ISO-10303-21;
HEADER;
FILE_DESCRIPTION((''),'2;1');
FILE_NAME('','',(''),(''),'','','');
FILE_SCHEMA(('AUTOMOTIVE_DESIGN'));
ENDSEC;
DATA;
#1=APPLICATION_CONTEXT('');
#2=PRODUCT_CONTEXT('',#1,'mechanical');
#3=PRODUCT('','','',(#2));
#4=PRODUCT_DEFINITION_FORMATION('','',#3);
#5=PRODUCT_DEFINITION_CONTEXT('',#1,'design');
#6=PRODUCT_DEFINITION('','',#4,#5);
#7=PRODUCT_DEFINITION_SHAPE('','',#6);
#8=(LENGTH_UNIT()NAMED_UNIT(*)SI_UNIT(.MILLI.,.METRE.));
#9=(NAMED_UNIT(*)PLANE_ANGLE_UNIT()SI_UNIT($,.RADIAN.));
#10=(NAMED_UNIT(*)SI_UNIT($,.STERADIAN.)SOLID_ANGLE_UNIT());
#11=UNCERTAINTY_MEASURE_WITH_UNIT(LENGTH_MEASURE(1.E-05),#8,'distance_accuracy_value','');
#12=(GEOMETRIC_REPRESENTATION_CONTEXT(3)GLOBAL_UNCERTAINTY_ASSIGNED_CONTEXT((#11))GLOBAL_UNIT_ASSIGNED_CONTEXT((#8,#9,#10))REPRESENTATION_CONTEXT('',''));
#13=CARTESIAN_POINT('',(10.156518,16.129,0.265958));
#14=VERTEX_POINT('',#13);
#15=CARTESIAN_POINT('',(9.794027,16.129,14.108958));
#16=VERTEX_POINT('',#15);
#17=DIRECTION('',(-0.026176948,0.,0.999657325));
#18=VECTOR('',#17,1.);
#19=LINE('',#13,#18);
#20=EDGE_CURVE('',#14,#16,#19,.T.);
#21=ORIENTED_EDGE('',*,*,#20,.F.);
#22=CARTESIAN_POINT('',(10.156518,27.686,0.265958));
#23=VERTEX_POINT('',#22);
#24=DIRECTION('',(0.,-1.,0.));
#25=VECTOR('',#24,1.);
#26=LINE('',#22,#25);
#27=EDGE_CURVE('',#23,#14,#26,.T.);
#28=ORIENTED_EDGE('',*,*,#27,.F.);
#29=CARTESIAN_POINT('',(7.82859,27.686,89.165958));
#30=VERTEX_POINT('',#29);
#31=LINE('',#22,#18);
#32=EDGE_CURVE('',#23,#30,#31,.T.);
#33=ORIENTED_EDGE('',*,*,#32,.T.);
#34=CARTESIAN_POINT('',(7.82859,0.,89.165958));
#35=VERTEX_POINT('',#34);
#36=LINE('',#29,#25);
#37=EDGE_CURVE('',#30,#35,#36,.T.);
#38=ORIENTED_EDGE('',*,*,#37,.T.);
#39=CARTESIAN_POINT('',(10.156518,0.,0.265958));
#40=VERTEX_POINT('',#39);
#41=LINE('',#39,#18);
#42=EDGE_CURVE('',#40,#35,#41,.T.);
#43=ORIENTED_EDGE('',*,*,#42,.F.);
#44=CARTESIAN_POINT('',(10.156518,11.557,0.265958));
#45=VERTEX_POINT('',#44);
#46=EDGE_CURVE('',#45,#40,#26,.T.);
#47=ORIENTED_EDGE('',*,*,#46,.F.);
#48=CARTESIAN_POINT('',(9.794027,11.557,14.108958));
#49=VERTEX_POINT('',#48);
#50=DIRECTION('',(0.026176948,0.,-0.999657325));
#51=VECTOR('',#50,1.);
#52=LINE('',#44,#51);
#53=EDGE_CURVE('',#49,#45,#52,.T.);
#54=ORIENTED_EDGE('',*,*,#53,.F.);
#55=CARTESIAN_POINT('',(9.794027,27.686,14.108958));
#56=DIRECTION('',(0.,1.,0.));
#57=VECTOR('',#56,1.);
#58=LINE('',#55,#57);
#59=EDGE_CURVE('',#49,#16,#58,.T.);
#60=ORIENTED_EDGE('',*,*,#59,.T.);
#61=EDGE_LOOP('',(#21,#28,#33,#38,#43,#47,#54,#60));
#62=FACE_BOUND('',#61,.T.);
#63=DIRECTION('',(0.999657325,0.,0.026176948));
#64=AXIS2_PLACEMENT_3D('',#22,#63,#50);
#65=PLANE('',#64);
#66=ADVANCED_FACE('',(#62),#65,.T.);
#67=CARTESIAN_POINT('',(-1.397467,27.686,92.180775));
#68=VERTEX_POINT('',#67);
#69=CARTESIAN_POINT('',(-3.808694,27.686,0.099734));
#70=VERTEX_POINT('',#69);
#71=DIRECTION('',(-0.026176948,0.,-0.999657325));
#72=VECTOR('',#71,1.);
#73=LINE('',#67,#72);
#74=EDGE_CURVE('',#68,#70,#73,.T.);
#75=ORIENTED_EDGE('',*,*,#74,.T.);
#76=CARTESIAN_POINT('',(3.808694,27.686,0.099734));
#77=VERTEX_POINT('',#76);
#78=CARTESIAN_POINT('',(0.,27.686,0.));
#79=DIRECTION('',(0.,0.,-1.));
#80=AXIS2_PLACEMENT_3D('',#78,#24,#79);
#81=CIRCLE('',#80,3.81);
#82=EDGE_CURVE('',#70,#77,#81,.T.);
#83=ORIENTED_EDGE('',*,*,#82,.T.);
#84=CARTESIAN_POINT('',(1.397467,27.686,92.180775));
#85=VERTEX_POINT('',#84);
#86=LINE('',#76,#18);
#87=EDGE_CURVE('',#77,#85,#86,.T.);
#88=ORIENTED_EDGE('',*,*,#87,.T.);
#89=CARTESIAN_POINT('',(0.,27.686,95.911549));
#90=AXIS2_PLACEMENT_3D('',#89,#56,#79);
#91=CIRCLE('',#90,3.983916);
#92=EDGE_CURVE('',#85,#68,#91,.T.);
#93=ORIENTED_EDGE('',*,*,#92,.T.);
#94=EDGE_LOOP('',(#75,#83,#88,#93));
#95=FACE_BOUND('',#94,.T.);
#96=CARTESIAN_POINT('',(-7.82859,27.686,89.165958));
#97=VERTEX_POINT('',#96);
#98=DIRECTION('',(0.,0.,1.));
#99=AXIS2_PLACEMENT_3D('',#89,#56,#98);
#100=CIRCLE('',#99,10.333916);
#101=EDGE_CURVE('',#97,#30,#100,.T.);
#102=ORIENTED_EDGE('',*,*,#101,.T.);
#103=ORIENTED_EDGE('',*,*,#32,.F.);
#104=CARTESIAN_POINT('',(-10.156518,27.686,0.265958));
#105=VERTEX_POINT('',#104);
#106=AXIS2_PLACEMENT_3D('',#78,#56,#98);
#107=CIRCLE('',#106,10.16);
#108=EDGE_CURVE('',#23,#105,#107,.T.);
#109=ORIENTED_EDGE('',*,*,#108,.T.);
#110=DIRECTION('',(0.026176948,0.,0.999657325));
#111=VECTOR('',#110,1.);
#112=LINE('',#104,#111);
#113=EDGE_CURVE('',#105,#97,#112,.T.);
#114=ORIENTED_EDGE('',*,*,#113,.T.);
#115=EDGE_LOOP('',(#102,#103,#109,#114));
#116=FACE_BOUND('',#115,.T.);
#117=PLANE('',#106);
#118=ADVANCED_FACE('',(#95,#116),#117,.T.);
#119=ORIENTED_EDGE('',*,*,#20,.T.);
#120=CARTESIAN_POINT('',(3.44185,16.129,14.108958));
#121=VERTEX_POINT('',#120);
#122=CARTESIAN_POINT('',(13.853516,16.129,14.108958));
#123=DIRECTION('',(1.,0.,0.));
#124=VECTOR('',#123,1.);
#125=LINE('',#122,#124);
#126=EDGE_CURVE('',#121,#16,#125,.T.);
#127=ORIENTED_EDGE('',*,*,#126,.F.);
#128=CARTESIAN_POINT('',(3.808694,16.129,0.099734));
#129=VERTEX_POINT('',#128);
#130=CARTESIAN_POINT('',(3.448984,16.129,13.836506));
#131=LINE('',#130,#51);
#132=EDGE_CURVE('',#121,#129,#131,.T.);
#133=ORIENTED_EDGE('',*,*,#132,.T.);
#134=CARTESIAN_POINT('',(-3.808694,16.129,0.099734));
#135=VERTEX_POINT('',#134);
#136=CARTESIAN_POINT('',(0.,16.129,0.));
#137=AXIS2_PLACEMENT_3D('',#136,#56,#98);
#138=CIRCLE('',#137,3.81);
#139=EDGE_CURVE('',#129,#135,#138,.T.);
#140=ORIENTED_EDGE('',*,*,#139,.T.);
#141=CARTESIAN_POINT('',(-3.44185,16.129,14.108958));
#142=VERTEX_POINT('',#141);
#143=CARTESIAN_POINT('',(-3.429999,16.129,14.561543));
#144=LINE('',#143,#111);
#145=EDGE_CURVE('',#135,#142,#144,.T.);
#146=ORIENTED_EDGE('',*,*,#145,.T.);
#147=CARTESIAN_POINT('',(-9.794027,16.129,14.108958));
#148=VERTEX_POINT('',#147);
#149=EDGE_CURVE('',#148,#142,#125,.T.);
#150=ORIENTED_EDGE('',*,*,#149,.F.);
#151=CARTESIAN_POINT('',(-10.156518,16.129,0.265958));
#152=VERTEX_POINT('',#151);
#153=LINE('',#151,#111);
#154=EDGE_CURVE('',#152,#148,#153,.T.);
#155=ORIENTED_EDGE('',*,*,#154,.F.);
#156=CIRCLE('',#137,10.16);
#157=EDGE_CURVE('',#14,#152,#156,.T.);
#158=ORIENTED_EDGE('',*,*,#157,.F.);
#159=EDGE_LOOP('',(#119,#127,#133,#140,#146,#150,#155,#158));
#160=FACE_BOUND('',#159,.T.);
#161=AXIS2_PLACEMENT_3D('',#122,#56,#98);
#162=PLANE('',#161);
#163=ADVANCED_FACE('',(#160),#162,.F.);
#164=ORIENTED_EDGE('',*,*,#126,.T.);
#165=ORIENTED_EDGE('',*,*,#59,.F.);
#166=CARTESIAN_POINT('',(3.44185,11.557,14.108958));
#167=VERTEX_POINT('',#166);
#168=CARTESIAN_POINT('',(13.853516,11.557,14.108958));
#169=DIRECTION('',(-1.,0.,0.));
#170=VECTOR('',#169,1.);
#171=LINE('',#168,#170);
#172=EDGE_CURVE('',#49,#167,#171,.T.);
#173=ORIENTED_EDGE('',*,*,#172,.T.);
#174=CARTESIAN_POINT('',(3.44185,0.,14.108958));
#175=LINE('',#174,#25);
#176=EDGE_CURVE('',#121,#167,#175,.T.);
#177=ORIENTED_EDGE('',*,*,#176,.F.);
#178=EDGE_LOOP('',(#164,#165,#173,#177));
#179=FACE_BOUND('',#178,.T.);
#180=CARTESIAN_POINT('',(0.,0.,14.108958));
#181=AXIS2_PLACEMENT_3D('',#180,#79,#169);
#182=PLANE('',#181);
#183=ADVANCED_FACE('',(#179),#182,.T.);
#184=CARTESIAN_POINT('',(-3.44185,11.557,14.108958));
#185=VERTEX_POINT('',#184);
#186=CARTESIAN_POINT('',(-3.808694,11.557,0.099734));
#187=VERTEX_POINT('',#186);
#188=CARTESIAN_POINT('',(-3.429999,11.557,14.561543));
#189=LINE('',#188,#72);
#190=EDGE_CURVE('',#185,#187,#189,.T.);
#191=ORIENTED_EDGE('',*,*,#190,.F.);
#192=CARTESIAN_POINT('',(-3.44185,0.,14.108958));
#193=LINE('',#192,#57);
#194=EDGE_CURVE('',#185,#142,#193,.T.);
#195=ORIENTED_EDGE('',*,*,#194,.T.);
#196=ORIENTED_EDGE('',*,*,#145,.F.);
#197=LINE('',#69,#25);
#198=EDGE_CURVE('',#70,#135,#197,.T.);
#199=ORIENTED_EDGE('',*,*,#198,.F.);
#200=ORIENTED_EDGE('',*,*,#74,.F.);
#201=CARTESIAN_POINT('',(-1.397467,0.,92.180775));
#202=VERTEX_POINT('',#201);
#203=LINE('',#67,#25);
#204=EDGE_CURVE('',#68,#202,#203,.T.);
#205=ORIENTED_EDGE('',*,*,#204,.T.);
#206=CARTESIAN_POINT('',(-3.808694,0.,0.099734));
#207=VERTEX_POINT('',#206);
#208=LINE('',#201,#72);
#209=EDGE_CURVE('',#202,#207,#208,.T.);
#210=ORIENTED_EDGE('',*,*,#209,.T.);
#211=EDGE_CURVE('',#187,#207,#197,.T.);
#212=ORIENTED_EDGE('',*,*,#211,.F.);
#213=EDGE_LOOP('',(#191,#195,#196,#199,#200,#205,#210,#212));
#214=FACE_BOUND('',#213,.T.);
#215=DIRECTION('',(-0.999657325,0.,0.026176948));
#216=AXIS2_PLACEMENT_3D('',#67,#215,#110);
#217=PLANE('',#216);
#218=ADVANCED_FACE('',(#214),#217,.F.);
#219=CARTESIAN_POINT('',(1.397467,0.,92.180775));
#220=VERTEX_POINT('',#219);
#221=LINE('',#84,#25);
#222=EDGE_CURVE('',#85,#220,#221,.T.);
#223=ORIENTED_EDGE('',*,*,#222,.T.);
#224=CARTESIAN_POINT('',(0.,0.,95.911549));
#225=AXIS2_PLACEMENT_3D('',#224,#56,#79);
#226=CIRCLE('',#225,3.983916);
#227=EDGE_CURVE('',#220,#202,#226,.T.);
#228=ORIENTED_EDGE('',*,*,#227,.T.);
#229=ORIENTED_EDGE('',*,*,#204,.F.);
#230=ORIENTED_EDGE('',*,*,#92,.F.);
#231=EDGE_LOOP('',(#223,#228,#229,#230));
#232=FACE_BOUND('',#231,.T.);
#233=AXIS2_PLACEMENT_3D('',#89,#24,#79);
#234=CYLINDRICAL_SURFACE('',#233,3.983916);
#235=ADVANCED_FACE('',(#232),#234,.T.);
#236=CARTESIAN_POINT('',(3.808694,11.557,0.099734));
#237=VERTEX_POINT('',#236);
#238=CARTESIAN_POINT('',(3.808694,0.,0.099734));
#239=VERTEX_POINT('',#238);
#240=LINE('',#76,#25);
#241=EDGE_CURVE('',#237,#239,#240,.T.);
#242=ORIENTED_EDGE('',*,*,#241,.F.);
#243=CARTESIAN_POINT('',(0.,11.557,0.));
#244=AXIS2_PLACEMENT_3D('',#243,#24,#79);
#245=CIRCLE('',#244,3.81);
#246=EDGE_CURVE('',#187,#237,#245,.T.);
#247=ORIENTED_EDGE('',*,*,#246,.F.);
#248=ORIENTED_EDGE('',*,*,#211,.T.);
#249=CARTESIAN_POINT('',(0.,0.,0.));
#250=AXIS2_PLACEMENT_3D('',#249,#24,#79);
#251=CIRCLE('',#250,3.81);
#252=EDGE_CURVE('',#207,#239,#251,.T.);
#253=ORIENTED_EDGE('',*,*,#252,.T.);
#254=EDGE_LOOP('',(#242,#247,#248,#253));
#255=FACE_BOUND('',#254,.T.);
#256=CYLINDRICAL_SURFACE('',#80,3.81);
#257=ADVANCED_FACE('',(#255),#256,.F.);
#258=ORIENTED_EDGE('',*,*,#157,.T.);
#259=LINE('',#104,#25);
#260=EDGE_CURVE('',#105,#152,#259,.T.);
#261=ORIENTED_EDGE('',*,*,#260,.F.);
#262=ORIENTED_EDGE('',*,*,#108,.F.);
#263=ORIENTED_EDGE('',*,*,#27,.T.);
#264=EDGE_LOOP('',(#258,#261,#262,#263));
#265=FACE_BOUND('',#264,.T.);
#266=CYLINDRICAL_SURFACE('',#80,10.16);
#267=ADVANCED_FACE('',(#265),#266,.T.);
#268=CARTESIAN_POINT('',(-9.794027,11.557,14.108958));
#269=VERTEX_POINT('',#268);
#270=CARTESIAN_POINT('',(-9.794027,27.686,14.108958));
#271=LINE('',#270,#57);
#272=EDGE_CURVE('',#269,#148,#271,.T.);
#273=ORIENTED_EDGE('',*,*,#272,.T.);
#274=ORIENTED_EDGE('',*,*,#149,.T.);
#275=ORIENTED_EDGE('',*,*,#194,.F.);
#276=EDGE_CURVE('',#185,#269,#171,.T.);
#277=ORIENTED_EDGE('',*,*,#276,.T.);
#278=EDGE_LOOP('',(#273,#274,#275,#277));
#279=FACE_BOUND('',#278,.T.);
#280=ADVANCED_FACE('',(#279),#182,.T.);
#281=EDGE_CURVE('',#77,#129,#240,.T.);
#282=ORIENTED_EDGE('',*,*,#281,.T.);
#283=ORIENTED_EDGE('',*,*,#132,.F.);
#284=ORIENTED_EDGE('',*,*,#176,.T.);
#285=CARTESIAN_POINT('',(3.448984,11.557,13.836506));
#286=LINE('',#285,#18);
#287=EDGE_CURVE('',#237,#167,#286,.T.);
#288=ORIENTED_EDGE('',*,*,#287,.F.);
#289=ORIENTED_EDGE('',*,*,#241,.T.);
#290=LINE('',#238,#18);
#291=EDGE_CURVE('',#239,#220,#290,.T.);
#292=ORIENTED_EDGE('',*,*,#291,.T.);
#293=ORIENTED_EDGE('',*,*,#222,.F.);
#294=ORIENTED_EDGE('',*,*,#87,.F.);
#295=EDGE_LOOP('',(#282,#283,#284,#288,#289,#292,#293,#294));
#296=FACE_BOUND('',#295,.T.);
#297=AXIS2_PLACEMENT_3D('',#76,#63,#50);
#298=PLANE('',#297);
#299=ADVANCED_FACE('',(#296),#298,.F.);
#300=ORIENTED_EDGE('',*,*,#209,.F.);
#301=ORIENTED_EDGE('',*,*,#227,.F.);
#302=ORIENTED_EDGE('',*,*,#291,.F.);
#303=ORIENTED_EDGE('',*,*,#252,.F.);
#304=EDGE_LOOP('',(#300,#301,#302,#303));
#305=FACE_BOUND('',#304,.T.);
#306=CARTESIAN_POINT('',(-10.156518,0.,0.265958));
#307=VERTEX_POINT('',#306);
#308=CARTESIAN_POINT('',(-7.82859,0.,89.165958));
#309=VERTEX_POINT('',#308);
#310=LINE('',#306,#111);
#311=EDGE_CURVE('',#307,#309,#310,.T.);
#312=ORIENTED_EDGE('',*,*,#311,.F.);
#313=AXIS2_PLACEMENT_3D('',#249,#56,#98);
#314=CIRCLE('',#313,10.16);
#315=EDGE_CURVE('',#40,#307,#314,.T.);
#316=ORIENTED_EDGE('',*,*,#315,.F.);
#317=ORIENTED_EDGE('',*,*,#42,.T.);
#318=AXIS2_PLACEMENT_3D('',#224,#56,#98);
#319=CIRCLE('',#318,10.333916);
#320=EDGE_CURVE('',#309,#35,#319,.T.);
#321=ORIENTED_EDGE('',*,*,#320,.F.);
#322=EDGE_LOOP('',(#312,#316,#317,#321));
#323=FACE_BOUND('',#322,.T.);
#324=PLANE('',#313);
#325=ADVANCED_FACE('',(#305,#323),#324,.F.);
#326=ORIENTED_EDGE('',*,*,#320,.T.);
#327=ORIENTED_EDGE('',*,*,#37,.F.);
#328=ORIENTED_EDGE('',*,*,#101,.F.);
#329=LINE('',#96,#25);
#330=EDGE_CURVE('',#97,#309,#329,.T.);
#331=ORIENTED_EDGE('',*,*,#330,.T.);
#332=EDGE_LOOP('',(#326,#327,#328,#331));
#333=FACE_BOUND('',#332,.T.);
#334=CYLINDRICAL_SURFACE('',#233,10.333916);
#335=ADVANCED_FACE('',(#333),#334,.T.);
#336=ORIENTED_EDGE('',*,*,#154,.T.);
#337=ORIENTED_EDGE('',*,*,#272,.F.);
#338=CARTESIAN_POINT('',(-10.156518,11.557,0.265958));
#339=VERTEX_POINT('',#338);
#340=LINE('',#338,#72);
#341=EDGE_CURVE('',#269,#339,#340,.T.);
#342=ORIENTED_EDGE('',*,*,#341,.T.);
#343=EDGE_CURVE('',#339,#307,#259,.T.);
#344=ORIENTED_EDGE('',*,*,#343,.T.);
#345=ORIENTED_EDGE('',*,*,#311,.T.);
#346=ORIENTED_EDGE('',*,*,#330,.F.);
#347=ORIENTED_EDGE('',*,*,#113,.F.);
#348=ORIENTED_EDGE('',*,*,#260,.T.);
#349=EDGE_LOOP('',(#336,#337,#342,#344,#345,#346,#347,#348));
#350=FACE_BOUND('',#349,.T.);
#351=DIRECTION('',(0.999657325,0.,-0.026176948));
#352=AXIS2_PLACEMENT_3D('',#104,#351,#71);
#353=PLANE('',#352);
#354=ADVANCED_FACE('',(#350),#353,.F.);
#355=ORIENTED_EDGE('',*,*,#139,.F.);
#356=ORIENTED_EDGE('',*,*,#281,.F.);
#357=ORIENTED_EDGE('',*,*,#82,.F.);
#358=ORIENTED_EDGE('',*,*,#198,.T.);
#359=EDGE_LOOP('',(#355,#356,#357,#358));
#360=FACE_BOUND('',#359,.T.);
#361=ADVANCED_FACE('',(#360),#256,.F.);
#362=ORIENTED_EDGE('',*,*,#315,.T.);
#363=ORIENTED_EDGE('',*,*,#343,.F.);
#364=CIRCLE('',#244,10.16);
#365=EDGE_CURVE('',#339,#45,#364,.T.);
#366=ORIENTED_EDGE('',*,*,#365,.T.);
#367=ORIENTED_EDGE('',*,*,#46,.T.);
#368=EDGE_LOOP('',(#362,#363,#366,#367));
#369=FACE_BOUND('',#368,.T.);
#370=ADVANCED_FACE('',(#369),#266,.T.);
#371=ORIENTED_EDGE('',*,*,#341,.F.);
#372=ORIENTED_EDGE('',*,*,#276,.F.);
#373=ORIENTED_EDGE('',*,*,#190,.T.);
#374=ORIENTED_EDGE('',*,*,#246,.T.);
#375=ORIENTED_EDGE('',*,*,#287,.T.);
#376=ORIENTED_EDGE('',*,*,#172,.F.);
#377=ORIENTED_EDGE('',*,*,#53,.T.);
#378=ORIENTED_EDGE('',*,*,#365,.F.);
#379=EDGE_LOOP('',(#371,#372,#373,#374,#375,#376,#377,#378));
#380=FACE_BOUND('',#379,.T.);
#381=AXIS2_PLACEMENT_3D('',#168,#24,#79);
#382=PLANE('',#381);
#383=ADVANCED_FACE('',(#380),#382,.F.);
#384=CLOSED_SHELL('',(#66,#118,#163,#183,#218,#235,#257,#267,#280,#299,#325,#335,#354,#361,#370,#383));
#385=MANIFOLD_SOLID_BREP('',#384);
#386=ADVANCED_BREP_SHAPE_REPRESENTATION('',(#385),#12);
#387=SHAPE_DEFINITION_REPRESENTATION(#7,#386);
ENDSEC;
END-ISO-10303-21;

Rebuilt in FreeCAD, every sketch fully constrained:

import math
import FreeCAD as App
import Part
import Sketcher

V = App.Vector
Q = App.Units.Quantity

doc = App.newDocument("Part")
params = doc.addObject("Spreadsheet::Sheet", "Params")
for row, (alias, value) in enumerate([
    ("sketch1_radius", "0.4 in"),
    ("pad1_length", "1.09 in"),
    ("sketch2_height", "0.18 in"),
    ("pocket1_length", "1.09 in"),
    ("sketch3_radius", "0.4 in"),
    ("sketch3_radius2", "0.15 in"),
    ("pocket2_length", "1.09 in"),
], start=1):
    params.set(f"A{row}", alias)
    params.set(f"B{row}", "=" + value)
    params.setAlias(f"B{row}", alias)

body = doc.addObject("PartDesign::Body", "Body")

sketch1 = body.newObject("Sketcher::SketchObject", "Sketch")
sketch1.AttachmentSupport = (doc.getObject("XZ_Plane"), [""])
sketch1.MapMode = "FlatFace"
sketch1.addGeometry([
    Part.LineSegment(V(-10, 0, 0), V(-8, 89, 0)),
    Part.ArcOfCircle(Part.Circle(V(0, 96, 0), V(0, 0, 1), 10), math.radians(-41), math.radians(221)),
    Part.LineSegment(V(8, 89, 0), V(10, 0, 0)),
    Part.ArcOfCircle(Part.Circle(V(0, 0, 0), V(0, 0, 1), 10), math.radians(178), math.radians(362)),
], False)
sketch1.addConstraint([
    Sketcher.Constraint("Coincident", 0, 2, 1, 2),
    Sketcher.Constraint("Coincident", 1, 1, 2, 1),
    Sketcher.Constraint("Tangent", 2, 2, 3, 2),
    Sketcher.Constraint("Tangent", 3, 1, 0, 1),
    Sketcher.Constraint("Coincident", 3, 3, -1, 1),
    Sketcher.Constraint("Symmetric", 0, 2, 1, 1, -2),
    Sketcher.Constraint("Radius", 3, Q("0.4 in")),
    Sketcher.Constraint("Angle", 0, Q("88.5 deg")),
    Sketcher.Constraint("DistanceY", 2, 2, 1, 1, Q("3.5 in")),
    Sketcher.Constraint("Radius", 1, Q("10.333916 mm")),
])
sketch1.setExpression("Constraints[6]", "Params.sketch1_radius")
pad1 = body.newObject("PartDesign::Pad", "Pad")
pad1.Profile = sketch1
pad1.setExpression("Length", "Params.pad1_length")
pad1.Reversed = True

sketch2 = body.newObject("Sketcher::SketchObject", "Sketch001")
sketch2.AttachmentSupport = (doc.getObject("XY_Plane"), [""])
sketch2.MapMode = "FlatFace"
sketch2.AttachmentOffset = App.Placement(V(0, 0, 0.265958), App.Rotation())
sketch2.addGeometry([
    Part.LineSegment(V(13.9, 16.1, 0), V(13.9, 11.6, 0)),
    Part.LineSegment(V(13.9, 11.6, 0), V(-16.1, 11.6, 0)),
    Part.LineSegment(V(-16.1, 11.6, 0), V(-16.1, 16.1, 0)),
    Part.LineSegment(V(-16.1, 16.1, 0), V(13.9, 16.1, 0)),
], False)
sketch2.addConstraint([
    Sketcher.Constraint("Coincident", 0, 2, 1, 1),
    Sketcher.Constraint("Coincident", 1, 2, 2, 1),
    Sketcher.Constraint("Coincident", 2, 2, 3, 1),
    Sketcher.Constraint("Coincident", 3, 2, 0, 1),
    Sketcher.Constraint("Vertical", 0),
    Sketcher.Constraint("Horizontal", 1),
    Sketcher.Constraint("Vertical", 2),
    Sketcher.Constraint("Horizontal", 3),
    Sketcher.Constraint("DistanceY", 0, 2, 0, 1, Q("0.18 in")),
    Sketcher.Constraint("DistanceY", -1, 1, 0, 2, Q("0.455 in")),
    Sketcher.Constraint("DistanceX", 1, 2, 1, 1, Q("29.921903 mm")),
    Sketcher.Constraint("DistanceX", -1, 1, 0, 2, Q("13.853516 mm")),
])
sketch2.setExpression("Constraints[8]", "Params.sketch2_height")
pocket1 = body.newObject("PartDesign::Pocket", "Pocket")
pocket1.Profile = sketch2
pocket1.setExpression("Length", "Params.pocket1_length")
pocket1.Midplane = True

sketch3 = body.newObject("Sketcher::SketchObject", "Sketch002")
sketch3.AttachmentSupport = (doc.getObject("XZ_Plane"), [""])
sketch3.MapMode = "FlatFace"
sketch3.addGeometry([
    Part.LineSegment(V(-23.5, 119.4, 0), V(-23.5, -23.3, 0)),
    Part.LineSegment(V(-23.5, -23.3, 0), V(23.5, -23.3, 0)),
    Part.LineSegment(V(23.5, -23.3, 0), V(23.5, 119.4, 0)),
    Part.LineSegment(V(23.5, 119.4, 0), V(-23.5, 119.4, 0)),
    Part.LineSegment(V(7.8, 89.2, 0), V(10.2, 0.3, 0)),
    Part.ArcOfCircle(Part.Circle(V(0, 0, 0), V(0, 0, 1), 10.2), math.radians(178), math.radians(362)),
    Part.LineSegment(V(-10.2, 0.3, 0), V(-7.8, 89.2, 0)),
    Part.ArcOfCircle(Part.Circle(V(0, 95.9, 0), V(0, 0, 1), 10.3), math.radians(-41), math.radians(221)),
    Part.LineSegment(V(-1.4, 92.2, 0), V(-3.8, 0.1, 0)),
    Part.ArcOfCircle(Part.Circle(V(0, 0, 0), V(0, 0, 1), 3.8), math.radians(179), math.radians(361)),
    Part.LineSegment(V(3.8, 0.1, 0), V(1.4, 92.2, 0)),
    Part.ArcOfCircle(Part.Circle(V(0, 95.9, 0), V(0, 0, 1), 4), math.radians(-111), math.radians(-69)),
], False)
sketch3.addConstraint([
    Sketcher.Constraint("Coincident", 0, 2, 1, 1),
    Sketcher.Constraint("Coincident", 1, 2, 2, 1),
    Sketcher.Constraint("Coincident", 2, 2, 3, 1),
    Sketcher.Constraint("Coincident", 3, 2, 0, 1),
    Sketcher.Constraint("Tangent", 4, 2, 5, 2),
    Sketcher.Constraint("Tangent", 5, 1, 6, 1),
    Sketcher.Constraint("Coincident", 6, 2, 7, 2),
    Sketcher.Constraint("Coincident", 7, 1, 4, 1),
    Sketcher.Constraint("Tangent", 8, 2, 9, 1),
    Sketcher.Constraint("Tangent", 9, 2, 10, 1),
    Sketcher.Constraint("Coincident", 10, 2, 11, 2),
    Sketcher.Constraint("Coincident", 11, 1, 8, 1),
    Sketcher.Constraint("Vertical", 0),
    Sketcher.Constraint("Horizontal", 1),
    Sketcher.Constraint("Vertical", 2),
    Sketcher.Constraint("Horizontal", 3),
    Sketcher.Constraint("Coincident", 5, 3, -1, 1),
    Sketcher.Constraint("Coincident", 9, 3, -1, 1),
    Sketcher.Constraint("Coincident", 11, 3, 7, 3),
    Sketcher.Constraint("Symmetric", 6, 2, 7, 1, -2),
    Sketcher.Constraint("Parallel", 6, 8),
    Sketcher.Constraint("Parallel", 4, 10),
    Sketcher.Constraint("Radius", 5, Q("0.4 in")),
    Sketcher.Constraint("Radius", 9, Q("0.15 in")),
    Sketcher.Constraint("Angle", 4, Q("-88.5 deg")),
    Sketcher.Constraint("DistanceY", 5, 1, 6, 2, Q("3.5 in")),
    Sketcher.Constraint("DistanceX", 1, 1, 1, 2, Q("46.952 mm")),
    Sketcher.Constraint("DistanceY", 0, 2, 0, 1, Q("142.689 mm")),
    Sketcher.Constraint("Radius", 7, Q("10.333916 mm")),
    Sketcher.Constraint("Radius", 11, Q("3.983916 mm")),
    Sketcher.Constraint("DistanceX", 0, 2, -1, 1, Q("23.476 mm")),
    Sketcher.Constraint("DistanceY", 0, 2, -1, 1, Q("23.302 mm")),
])
sketch3.setExpression("Constraints[22]", "Params.sketch3_radius")
sketch3.setExpression("Constraints[23]", "Params.sketch3_radius2")
pocket2 = body.newObject("PartDesign::Pocket", "Pocket001")
pocket2.Profile = sketch3
pocket2.setExpression("Length", "Params.pocket2_length")

doc.recompute()
